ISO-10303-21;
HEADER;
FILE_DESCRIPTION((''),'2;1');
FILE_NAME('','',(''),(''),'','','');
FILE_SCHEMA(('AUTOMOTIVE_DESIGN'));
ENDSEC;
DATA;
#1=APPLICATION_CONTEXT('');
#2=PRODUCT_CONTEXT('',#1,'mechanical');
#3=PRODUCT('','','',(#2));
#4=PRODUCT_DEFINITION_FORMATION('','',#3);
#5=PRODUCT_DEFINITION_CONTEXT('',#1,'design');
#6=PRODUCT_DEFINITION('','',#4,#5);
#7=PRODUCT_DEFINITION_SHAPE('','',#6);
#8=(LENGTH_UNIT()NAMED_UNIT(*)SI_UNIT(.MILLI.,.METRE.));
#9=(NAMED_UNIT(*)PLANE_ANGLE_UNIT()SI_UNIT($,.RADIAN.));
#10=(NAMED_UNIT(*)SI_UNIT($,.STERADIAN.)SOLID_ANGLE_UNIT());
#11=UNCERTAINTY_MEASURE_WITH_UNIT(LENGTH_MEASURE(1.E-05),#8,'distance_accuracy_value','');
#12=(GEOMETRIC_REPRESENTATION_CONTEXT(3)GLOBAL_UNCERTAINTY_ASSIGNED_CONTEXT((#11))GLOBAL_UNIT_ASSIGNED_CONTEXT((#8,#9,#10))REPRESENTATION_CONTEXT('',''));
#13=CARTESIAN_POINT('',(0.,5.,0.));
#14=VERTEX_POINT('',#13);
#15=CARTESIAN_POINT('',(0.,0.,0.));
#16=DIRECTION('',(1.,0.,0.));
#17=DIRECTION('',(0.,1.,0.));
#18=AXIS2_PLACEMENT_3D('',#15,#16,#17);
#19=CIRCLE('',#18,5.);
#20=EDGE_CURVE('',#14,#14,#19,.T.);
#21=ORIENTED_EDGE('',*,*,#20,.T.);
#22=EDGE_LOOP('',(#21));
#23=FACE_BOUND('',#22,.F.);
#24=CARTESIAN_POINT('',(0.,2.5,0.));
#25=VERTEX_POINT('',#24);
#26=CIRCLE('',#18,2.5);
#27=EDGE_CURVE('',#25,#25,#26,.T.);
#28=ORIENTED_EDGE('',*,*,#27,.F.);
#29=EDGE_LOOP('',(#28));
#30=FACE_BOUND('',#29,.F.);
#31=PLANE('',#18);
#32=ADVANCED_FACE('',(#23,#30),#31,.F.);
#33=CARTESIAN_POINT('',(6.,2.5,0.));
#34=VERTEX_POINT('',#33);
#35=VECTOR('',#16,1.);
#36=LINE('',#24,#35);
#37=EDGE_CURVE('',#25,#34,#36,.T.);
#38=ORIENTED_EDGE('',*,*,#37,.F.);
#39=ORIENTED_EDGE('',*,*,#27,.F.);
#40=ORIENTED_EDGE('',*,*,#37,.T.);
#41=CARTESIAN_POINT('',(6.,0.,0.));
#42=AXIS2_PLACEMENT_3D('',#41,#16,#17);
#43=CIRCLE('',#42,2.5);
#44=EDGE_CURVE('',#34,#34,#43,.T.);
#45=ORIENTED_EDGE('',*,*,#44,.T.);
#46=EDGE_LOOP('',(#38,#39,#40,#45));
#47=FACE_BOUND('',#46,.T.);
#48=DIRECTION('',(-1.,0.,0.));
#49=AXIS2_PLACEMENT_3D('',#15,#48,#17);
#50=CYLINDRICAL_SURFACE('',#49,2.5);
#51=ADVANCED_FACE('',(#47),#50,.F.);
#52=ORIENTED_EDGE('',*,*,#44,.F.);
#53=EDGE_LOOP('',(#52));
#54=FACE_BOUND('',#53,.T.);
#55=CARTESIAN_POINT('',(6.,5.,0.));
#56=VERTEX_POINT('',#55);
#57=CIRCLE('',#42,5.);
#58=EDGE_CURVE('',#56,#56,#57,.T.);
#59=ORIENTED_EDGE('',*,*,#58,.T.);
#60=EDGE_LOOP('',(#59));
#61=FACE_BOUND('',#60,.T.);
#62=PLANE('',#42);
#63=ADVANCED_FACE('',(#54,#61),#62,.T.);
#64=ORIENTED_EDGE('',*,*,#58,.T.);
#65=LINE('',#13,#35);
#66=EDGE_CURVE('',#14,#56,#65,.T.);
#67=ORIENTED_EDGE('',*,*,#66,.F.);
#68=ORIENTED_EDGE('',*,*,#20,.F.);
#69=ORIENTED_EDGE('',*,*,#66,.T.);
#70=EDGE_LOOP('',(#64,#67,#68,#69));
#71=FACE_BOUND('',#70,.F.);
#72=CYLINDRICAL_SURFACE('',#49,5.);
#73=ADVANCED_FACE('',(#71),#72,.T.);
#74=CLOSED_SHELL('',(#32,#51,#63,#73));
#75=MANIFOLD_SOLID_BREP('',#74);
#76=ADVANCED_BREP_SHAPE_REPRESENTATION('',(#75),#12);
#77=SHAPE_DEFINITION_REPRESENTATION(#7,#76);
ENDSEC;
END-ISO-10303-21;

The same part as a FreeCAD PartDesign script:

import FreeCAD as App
import Part
import Sketcher

V = App.Vector

doc = App.newDocument("Part")
body = doc.addObject("PartDesign::Body", "Body")

# Sketch on YZ plane
sketch1 = body.newObject("Sketcher::SketchObject", "Sketch")
sketch1.AttachmentSupport = (doc.getObject("YZ_Plane"), [""])
sketch1.MapMode = "FlatFace"
sketch1.addGeometry(Part.Circle(V(0, 0, 0), V(0, 0, 1), 5), False)
sketch1.addGeometry(Part.Circle(V(0, 0, 0), V(0, 0, 1), 2.5), False)
sketch1.addConstraint(Sketcher.Constraint("Coincident", 0, 3, -1, 1))
sketch1.addConstraint(Sketcher.Constraint("Coincident", 1, 3, -1, 1))
sketch1.addConstraint(Sketcher.Constraint("Diameter", 0, 10.0))
sketch1.addConstraint(Sketcher.Constraint("Diameter", 1, 5.0))
pad1 = body.newObject("PartDesign::Pad", "Pad")
pad1.Profile = sketch1
pad1.Length = 6

doc.recompute()
